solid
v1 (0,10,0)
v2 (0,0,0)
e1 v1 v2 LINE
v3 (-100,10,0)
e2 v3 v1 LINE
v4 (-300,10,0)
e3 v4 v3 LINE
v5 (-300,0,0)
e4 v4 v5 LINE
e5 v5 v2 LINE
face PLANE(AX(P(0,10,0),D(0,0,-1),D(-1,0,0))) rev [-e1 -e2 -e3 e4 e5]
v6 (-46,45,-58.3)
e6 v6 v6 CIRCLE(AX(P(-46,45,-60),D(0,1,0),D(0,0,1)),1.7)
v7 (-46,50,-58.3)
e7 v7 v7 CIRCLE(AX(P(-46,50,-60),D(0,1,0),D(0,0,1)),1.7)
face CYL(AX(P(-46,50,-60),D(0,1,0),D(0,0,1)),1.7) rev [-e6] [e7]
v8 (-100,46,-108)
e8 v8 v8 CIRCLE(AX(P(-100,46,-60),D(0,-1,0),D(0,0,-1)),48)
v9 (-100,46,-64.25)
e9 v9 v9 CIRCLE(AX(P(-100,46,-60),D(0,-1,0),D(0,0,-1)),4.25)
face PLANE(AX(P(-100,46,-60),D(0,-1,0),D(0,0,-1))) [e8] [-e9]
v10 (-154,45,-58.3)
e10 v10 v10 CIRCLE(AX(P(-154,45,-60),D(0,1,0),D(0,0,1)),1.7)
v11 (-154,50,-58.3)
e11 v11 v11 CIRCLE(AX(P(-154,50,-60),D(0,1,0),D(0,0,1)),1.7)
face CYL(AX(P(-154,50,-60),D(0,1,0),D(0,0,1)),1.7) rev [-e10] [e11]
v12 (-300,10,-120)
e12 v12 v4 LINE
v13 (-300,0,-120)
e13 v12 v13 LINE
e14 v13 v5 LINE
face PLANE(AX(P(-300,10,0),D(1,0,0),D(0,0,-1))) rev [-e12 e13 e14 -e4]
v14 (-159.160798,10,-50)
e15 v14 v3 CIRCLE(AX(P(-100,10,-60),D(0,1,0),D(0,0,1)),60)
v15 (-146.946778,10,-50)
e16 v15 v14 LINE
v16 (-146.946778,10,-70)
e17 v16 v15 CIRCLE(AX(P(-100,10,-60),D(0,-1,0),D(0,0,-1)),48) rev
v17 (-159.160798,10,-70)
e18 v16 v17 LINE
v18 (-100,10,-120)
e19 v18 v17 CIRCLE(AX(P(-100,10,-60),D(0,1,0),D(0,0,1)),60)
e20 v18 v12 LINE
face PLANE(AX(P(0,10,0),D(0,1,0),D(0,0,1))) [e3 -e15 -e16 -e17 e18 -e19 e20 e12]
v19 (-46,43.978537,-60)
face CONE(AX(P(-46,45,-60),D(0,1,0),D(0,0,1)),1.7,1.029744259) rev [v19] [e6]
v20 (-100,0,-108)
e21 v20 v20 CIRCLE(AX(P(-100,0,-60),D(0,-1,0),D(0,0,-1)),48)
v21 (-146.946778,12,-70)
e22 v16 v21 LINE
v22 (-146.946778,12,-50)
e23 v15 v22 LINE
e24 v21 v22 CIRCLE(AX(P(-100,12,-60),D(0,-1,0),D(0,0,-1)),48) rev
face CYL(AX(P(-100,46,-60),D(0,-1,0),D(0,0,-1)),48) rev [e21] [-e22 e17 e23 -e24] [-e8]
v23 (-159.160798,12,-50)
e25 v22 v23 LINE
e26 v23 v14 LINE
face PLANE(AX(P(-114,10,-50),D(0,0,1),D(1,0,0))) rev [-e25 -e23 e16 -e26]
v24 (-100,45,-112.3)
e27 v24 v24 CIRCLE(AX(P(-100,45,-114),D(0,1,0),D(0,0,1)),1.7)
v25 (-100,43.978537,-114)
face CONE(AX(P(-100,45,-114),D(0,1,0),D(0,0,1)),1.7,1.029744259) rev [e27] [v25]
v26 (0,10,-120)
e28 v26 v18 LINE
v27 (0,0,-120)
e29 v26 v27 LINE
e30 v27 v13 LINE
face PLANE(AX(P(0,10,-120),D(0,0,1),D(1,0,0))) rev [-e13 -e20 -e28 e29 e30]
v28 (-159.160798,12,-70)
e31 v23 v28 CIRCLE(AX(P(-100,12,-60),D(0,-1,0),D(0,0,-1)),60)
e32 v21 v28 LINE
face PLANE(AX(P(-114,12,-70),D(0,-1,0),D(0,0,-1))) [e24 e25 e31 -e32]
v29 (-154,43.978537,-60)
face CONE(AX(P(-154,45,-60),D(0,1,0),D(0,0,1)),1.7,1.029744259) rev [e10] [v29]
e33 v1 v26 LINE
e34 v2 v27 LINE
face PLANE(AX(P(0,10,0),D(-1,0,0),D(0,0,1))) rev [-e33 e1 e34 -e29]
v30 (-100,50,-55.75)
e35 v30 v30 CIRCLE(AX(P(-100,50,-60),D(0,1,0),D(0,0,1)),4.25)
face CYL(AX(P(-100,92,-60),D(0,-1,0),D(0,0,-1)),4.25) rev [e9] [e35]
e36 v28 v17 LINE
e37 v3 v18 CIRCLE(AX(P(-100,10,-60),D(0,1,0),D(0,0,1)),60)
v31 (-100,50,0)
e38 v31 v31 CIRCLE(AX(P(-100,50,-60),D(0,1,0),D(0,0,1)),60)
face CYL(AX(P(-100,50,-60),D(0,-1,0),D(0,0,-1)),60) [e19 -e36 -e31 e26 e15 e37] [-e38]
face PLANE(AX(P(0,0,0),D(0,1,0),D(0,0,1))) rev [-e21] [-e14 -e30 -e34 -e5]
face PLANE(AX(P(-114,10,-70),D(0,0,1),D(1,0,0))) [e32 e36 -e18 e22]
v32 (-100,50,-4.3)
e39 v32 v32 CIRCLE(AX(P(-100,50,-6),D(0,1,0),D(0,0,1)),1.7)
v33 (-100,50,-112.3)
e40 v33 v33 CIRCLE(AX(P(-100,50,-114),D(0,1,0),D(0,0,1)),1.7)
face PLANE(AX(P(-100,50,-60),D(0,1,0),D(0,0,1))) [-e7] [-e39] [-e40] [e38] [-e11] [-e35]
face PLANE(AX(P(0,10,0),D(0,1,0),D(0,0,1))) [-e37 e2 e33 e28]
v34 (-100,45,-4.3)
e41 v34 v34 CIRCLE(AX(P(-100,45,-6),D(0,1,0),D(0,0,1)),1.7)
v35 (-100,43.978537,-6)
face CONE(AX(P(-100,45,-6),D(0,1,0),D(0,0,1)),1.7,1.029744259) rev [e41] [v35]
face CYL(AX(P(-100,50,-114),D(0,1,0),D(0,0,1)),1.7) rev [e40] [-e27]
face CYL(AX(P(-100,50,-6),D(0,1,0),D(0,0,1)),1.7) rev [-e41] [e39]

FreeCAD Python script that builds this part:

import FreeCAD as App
import Part
import Sketcher

V = App.Vector
Q = App.Units.Quantity

doc = App.newDocument("Part")
body = doc.addObject("PartDesign::Body", "Body")

sketch1 = doc.addObject("Sketcher::SketchObject", "Sketch")
body.addObject(sketch1)
sketch1.AttachmentSupport = (doc.XZ_Plane, [""])
sketch1.MapMode = "FlatFace"
sketch1.addGeometry(Part.LineSegment(V(-300, -120, 0), V(-300, 0, 0)), False)
sketch1.addGeometry(Part.LineSegment(V(-300, 0, 0), V(0, 0, 0)), False)
sketch1.addGeometry(Part.LineSegment(V(0, 0, 0), V(0, -120, 0)), False)
sketch1.addGeometry(Part.LineSegment(V(0, -120, 0), V(-300, -120, 0)), False)
sketch1.addConstraint(Sketcher.Constraint("Coincident", 0, 2, 1, 1))
sketch1.addConstraint(Sketcher.Constraint("Coincident", 1, 2, 2, 1))
sketch1.addConstraint(Sketcher.Constraint("Coincident", 2, 2, 3, 1))
sketch1.addConstraint(Sketcher.Constraint("Coincident", 3, 2, 0, 1))
sketch1.addConstraint(Sketcher.Constraint("Vertical", 0))
sketch1.addConstraint(Sketcher.Constraint("Horizontal", 1))
sketch1.addConstraint(Sketcher.Constraint("Vertical", 2))
sketch1.addConstraint(Sketcher.Constraint("Horizontal", 3))
sketch1.addConstraint(Sketcher.Constraint("Coincident", 1, 2, -1, 1))
sketch1.addConstraint(Sketcher.Constraint("DistanceX", 1, 1, 1, 2, Q("300 mm")))
sketch1.addConstraint(Sketcher.Constraint("DistanceY", 0, 1, 0, 2, Q("120 mm")))
pad1 = doc.addObject("PartDesign::Pad", "Pad")
body.addObject(pad1)
pad1.Profile = sketch1
pad1.Length = 10
pad1.Reversed = True

sketch2 = doc.addObject("Sketcher::SketchObject", "Sketch001")
body.addObject(sketch2)
sketch2.AttachmentSupport = (doc.XZ_Plane, [""])
sketch2.MapMode = "FlatFace"
sketch2.AttachmentOffset = App.Placement(V(0, 0, -10), App.Rotation())
sketch2.addGeometry(Part.Circle(V(-100, -60, 0), V(0, 0, 1), 60), False)
sketch2.addConstraint(Sketcher.Constraint("Diameter", 0, Q("120 mm")))
sketch2.addConstraint(Sketcher.Constraint("DistanceX", 0, 3, -1, 1, Q("100 mm")))
sketch2.addConstraint(Sketcher.Constraint("DistanceY", 0, 3, -1, 1, Q("60 mm")))
pad2 = doc.addObject("PartDesign::Pad", "Pad001")
body.addObject(pad2)
pad2.Profile = sketch2
pad2.Length = 40
pad2.Reversed = True

sketch3 = doc.addObject("Sketcher::SketchObject", "Sketch002")
body.addObject(sketch3)
sketch3.AttachmentSupport = (doc.XZ_Plane, [""])
sketch3.MapMode = "FlatFace"
sketch3.addGeometry(Part.Circle(V(-100, -60, 0), V(0, 0, 1), 48), False)
sketch3.addConstraint(Sketcher.Constraint("Diameter", 0, Q("96 mm")))
sketch3.addConstraint(Sketcher.Constraint("DistanceX", 0, 3, -1, 1, Q("100 mm")))
sketch3.addConstraint(Sketcher.Constraint("DistanceY", 0, 3, -1, 1, Q("60 mm")))
pocket1 = doc.addObject("PartDesign::Pocket", "Pocket")
body.addObject(pocket1)
pocket1.Profile = sketch3
pocket1.Length = 46

sketch4 = doc.addObject("Sketcher::SketchObject", "Sketch003")
body.addObject(sketch4)
sketch4.AttachmentSupport = (doc.XZ_Plane, [""])
sketch4.MapMode = "FlatFace"
sketch4.AttachmentOffset = App.Placement(V(0, 0, -46), App.Rotation())
sketch4.addGeometry(Part.Circle(V(-100, -60, 0), V(0, 0, 1), 4.2), False)
sketch4.addConstraint(Sketcher.Constraint("Diameter", 0, Q("8.5 mm")))
sketch4.addConstraint(Sketcher.Constraint("DistanceX", 0, 3, -1, 1, Q("100 mm")))
sketch4.addConstraint(Sketcher.Constraint("DistanceY", 0, 3, -1, 1, Q("60 mm")))
pocket2 = doc.addObject("PartDesign::Pocket", "Pocket001")
body.addObject(pocket2)
pocket2.Profile = sketch4
pocket2.Length = 46

sketch5 = doc.addObject("Sketcher::SketchObject", "Sketch004")
body.addObject(sketch5)
sketch5.AttachmentSupport = (doc.YZ_Plane, [""])
sketch5.MapMode = "FlatFace"
sketch5.AttachmentOffset = App.Placement(V(0, 0, -160), App.Rotation())
sketch5.addGeometry(Part.LineSegment(V(12, -70, 0), V(10, -70, 0)), False)
sketch5.addGeometry(Part.LineSegment(V(10, -70, 0), V(10, -50, 0)), False)
sketch5.addGeometry(Part.LineSegment(V(10, -50, 0), V(12, -50, 0)), False)
sketch5.addGeometry(Part.LineSegment(V(12, -50, 0), V(12, -70, 0)), False)
sketch5.addConstraint(Sketcher.Constraint("Coincident", 0, 2, 1, 1))
sketch5.addConstraint(Sketcher.Constraint("Coincident", 1, 2, 2, 1))
sketch5.addConstraint(Sketcher.Constraint("Coincident", 2, 2, 3, 1))
sketch5.addConstraint(Sketcher.Constraint("Coincident", 3, 2, 0, 1))
sketch5.addConstraint(Sketcher.Constraint("Horizontal", 0))
sketch5.addConstraint(Sketcher.Constraint("Vertical", 1))
sketch5.addConstraint(Sketcher.Constraint("Horizontal", 2))
sketch5.addConstraint(Sketcher.Constraint("Vertical", 3))
sketch5.addConstraint(Sketcher.Constraint("DistanceX", 0, 2, 0, 1, Q("2 mm")))
sketch5.addConstraint(Sketcher.Constraint("DistanceY", 1, 1, 1, 2, Q("20 mm")))
sketch5.addConstraint(Sketcher.Constraint("DistanceX", -1, 1, 0, 2, Q("10 mm")))
sketch5.addConstraint(Sketcher.Constraint("DistanceY", 0, 2, -1, 1, Q("70 mm")))
pocket3 = doc.addObject("PartDesign::Pocket", "Pocket002")
body.addObject(pocket3)
pocket3.Profile = sketch5
pocket3.Length = 46
pocket3.Reversed = True

sketch6 = doc.addObject("Sketcher::SketchObject", "Sketch005")
body.addObject(sketch6)
sketch6.AttachmentSupport = (doc.XZ_Plane, [""])
sketch6.MapMode = "FlatFace"
sketch6.AttachmentOffset = App.Placement(V(0, 0, -50), App.Rotation())
sketch6.addGeometry(Part.Circle(V(-154, -60, 0), V(0, 0, 1), 1.7), False)
sketch6.addGeometry(Part.Circle(V(-100, -114, 0), V(0, 0, 1), 1.7), False)
sketch6.addGeometry(Part.Circle(V(-46, -60, 0), V(0, 0, 1), 1.7), False)
sketch6.addGeometry(Part.Circle(V(-100, -6, 0), V(0, 0, 1), 1.7), False)
sketch6.addConstraint(Sketcher.Constraint("Equal", 0, 1))
sketch6.addConstraint(Sketcher.Constraint("Equal", 1, 2))
sketch6.addConstraint(Sketcher.Constraint("Equal", 2, 3))
sketch6.addConstraint(Sketcher.Constraint("Horizontal", 0, 3, 2, 3))
sketch6.addConstraint(Sketcher.Constraint("Vertical", 1, 3, 3, 3))
sketch6.addConstraint(Sketcher.Constraint("Diameter", 0, Q("3.4 mm")))
sketch6.addConstraint(Sketcher.Constraint("DistanceX", 0, 3, -1, 1, Q("154 mm")))
sketch6.addConstraint(Sketcher.Constraint("DistanceY", 0, 3, -1, 1, Q("60 mm")))
sketch6.addConstraint(Sketcher.Constraint("DistanceX", 1, 3, -1, 1, Q("100 mm")))
sketch6.addConstraint(Sketcher.Constraint("DistanceY", 1, 3, -1, 1, Q("114 mm")))
sketch6.addConstraint(Sketcher.Constraint("DistanceX", 2, 3, -1, 1, Q("46 mm")))
sketch6.addConstraint(Sketcher.Constraint("DistanceY", 3, 3, -1, 1, Q("6 mm")))
doc.recompute()
hole = doc.addObject("PartDesign::Hole", "Hole")
body.addObject(hole)
hole.Profile = sketch6
hole.ThreadType = "None"
hole.Diameter = 3.4
hole.DepthType = "Dimension"
hole.Depth = 5
hole.DrillPoint = "Angled"
hole.DrillPointAngle = 118
hole.Reversed = True

doc.recompute()
